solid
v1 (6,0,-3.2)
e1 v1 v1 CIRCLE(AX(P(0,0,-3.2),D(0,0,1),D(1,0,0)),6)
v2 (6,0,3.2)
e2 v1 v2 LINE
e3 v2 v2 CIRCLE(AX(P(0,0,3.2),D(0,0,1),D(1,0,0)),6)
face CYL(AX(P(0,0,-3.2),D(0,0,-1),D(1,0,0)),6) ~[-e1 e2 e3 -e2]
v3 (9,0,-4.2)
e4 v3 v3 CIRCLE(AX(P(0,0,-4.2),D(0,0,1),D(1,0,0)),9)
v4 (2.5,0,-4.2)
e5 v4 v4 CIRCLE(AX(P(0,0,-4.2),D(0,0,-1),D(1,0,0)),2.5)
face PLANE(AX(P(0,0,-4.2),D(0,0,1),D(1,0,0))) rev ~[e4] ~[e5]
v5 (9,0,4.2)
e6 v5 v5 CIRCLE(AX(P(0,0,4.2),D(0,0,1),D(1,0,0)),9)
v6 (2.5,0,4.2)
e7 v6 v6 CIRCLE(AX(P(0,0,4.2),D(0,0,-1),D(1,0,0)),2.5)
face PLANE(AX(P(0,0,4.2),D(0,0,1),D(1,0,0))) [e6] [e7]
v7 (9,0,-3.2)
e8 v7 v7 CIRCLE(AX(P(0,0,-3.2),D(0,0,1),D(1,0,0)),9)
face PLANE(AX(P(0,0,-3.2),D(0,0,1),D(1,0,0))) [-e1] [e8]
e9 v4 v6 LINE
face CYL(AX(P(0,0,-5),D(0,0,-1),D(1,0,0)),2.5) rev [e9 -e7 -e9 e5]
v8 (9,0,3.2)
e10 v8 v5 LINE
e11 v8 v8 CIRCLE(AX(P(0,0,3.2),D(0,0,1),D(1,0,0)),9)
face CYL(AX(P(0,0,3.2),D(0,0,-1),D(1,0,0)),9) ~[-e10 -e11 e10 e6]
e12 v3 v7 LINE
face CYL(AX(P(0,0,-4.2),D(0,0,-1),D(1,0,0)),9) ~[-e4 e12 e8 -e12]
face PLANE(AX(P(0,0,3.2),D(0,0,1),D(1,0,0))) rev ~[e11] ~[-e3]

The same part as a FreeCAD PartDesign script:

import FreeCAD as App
import Part
import Sketcher
from FreeCAD import Vector

doc = App.newDocument("Part")
body = doc.addObject("PartDesign::Body", "Body")

# Sketch on XY plane
sketch1 = body.newObject("Sketcher::SketchObject", "Sketch")
sketch1.AttachmentSupport = (doc.getObject("XY_Plane"), [""])
sketch1.MapMode = "FlatFace"
sketch1.AttachmentOffset = App.Placement(Vector(0, 0, -5), App.Rotation())
sketch1.addGeometry(Part.Circle(Vector(0, 0, 0), Vector(0, 0, 1), 2.5), False)
sketch1.addConstraint(Sketcher.Constraint("Coincident", 0, 3, -1, 1))
sketch1.addConstraint(Sketcher.Constraint("Diameter", 0, 5.0))
pad1 = body.newObject("PartDesign::Pad", "Pad")
pad1.Profile = sketch1
pad1.Length = 10
body2 = doc.addObject("PartDesign::Body", "Body001")

# Sketch on XY plane
sketch2 = body2.newObject("Sketcher::SketchObject", "Sketch001")
sketch2.AttachmentSupport = (doc.getObject("XY_Plane001"), [""])
sketch2.MapMode = "FlatFace"
sketch2.AttachmentOffset = App.Placement(Vector(0, 0, 3.2), App.Rotation())
sketch2.addGeometry(Part.Circle(Vector(0, 0, 0), Vector(0, 0, 1), 9), False)
sketch2.addConstraint(Sketcher.Constraint("Coincident", 0, 3, -1, 1))
sketch2.addConstraint(Sketcher.Constraint("Diameter", 0, 18.0))
pad2 = body2.newObject("PartDesign::Pad", "Pad001")
pad2.Profile = sketch2
pad2.Length = 1
body3 = doc.addObject("PartDesign::Body", "Body002")

# Sketch on XY plane
sketch3 = body3.newObject("Sketcher::SketchObject", "Sketch002")
sketch3.AttachmentSupport = (doc.getObject("XY_Plane002"), [""])
sketch3.MapMode = "FlatFace"
sketch3.AttachmentOffset = App.Placement(Vector(0, 0, -3.2), App.Rotation())
sketch3.addGeometry(Part.Circle(Vector(0, 0, 0), Vector(0, 0, 1), 6), False)
sketch3.addConstraint(Sketcher.Constraint("Coincident", 0, 3, -1, 1))
sketch3.addConstraint(Sketcher.Constraint("Diameter", 0, 12.0))
pad3 = body3.newObject("PartDesign::Pad", "Pad002")
pad3.Profile = sketch3
pad3.Length = 6.4
doc.recompute()

boolean = body3.newObject("PartDesign::Boolean", "Boolean")
boolean.Type = "Fuse"
boolean.addObjects([body2])
body4 = doc.addObject("PartDesign::Body", "Body003")

# Sketch on XY plane
sketch4 = body4.newObject("Sketcher::SketchObject", "Sketch003")
sketch4.AttachmentSupport = (doc.getObject("XY_Plane003"), [""])
sketch4.MapMode = "FlatFace"
sketch4.AttachmentOffset = App.Placement(Vector(0, 0, -4.2), App.Rotation())
sketch4.addGeometry(Part.Circle(Vector(0, 0, 0), Vector(0, 0, 1), 9), False)
sketch4.addConstraint(Sketcher.Constraint("Coincident", 0, 3, -1, 1))
sketch4.addConstraint(Sketcher.Constraint("Diameter", 0, 18.0))
pad4 = body4.newObject("PartDesign::Pad", "Pad003")
pad4.Profile = sketch4
pad4.Length = 1
doc.recompute()

boolean2 = body4.newObject("PartDesign::Boolean", "Boolean001")
boolean2.Type = "Fuse"
boolean2.addObjects([body3])
doc.recompute()

boolean3 = body4.newObject("PartDesign::Boolean", "Boolean002")
boolean3.Type = "Cut"
boolean3.addObjects([body])

doc.recompute()
